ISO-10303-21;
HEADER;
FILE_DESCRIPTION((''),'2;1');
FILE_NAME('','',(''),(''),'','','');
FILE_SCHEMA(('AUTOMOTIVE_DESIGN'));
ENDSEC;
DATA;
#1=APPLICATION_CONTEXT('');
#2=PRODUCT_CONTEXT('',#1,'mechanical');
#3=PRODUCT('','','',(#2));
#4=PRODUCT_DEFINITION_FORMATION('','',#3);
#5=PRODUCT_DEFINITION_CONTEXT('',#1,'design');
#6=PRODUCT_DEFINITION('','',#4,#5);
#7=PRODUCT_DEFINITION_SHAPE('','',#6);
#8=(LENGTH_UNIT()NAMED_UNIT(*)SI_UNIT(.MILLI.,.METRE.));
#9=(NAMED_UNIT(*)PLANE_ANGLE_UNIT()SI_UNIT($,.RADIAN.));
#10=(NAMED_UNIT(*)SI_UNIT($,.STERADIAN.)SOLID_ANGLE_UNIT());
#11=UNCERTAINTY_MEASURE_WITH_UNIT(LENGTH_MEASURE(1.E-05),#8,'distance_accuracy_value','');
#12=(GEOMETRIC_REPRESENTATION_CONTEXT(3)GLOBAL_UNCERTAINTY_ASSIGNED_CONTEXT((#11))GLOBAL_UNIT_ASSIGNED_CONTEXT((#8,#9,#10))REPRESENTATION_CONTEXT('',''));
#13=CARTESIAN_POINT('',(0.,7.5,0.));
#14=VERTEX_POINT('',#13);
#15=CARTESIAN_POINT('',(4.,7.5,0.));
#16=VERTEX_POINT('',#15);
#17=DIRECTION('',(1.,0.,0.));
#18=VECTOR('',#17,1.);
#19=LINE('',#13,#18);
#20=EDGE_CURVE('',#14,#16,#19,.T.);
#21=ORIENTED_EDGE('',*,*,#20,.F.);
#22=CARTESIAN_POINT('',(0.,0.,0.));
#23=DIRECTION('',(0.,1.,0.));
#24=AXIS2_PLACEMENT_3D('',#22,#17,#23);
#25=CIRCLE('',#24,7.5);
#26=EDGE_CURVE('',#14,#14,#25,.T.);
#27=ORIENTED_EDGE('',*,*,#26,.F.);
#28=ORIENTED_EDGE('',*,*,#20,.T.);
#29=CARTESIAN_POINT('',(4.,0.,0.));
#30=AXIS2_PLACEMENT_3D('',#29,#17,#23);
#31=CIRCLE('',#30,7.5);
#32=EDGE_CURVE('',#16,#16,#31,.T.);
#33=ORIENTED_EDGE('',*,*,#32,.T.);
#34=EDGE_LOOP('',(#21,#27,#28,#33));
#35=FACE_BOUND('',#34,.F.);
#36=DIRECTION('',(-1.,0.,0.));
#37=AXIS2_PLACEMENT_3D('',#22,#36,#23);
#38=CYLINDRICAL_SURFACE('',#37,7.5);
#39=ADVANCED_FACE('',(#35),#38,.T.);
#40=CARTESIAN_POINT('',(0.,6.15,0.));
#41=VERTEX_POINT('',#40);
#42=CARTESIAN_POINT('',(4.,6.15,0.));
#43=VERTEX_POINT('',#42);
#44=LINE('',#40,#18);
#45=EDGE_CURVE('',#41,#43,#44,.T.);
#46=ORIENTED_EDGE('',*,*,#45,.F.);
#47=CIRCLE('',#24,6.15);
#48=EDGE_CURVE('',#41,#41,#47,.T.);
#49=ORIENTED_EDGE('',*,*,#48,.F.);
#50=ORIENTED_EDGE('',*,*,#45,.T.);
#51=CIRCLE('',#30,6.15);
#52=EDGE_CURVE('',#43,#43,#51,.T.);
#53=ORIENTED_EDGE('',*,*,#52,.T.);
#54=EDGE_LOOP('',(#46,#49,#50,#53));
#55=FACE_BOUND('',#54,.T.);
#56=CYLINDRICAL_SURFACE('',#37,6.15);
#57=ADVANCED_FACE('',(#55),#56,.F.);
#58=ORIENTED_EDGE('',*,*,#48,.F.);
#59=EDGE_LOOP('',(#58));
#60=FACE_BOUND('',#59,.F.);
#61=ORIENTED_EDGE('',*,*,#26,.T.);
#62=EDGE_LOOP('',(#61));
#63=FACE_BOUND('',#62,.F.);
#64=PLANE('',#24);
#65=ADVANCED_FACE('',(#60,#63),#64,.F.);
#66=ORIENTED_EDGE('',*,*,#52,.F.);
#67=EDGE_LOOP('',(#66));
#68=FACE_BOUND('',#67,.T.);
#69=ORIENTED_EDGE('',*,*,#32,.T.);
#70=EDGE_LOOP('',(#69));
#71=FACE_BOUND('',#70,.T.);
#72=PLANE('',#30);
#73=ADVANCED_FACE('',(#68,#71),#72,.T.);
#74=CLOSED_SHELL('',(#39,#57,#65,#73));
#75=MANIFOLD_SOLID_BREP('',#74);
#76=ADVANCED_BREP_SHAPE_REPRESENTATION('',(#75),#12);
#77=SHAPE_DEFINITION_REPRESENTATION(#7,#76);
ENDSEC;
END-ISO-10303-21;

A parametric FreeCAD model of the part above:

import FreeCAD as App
import Part
import Sketcher
from FreeCAD import Vector
Q = App.Units.Quantity

doc = App.newDocument("Part")
params = doc.addObject("Spreadsheet::Sheet", "Params")
for row, (alias, value) in enumerate([
    ("sketch1_diameter", "15 mm"),
    ("sketch1_diameter2", "12.3 mm"),
    ("pad1_length", "4 mm"),
], start=1):
    params.set(f"A{row}", alias)
    params.set(f"B{row}", "=" + value)
    params.setAlias(f"B{row}", alias)

body = doc.addObject("PartDesign::Body", "Body")

sketch1 = body.newObject("Sketcher::SketchObject", "Sketch")
sketch1.AttachmentSupport = (doc.getObject("YZ_Plane"), [""])
sketch1.MapMode = "FlatFace"
sketch1.addGeometry([
    Part.Circle(Vector(0, 0, 0), Vector(0, 0, 1), 8),
    Part.Circle(Vector(0, 0, 0), Vector(0, 0, 1), 6),
], False)
sketch1.addConstraint([
    Sketcher.Constraint("Coincident", 0, 3, -1, 1),
    Sketcher.Constraint("Coincident", 1, 3, -1, 1),
    Sketcher.Constraint("Diameter", 0, Q("15 mm")),
    Sketcher.Constraint("Diameter", 1, Q("12.3 mm")),
])
sketch1.setExpression("Constraints[2]", "Params.sketch1_diameter")
sketch1.setExpression("Constraints[3]", "Params.sketch1_diameter2")
pad1 = body.newObject("PartDesign::Pad", "Pad")
pad1.Profile = sketch1
pad1.setExpression("Length", "Params.pad1_length")

doc.recompute()
